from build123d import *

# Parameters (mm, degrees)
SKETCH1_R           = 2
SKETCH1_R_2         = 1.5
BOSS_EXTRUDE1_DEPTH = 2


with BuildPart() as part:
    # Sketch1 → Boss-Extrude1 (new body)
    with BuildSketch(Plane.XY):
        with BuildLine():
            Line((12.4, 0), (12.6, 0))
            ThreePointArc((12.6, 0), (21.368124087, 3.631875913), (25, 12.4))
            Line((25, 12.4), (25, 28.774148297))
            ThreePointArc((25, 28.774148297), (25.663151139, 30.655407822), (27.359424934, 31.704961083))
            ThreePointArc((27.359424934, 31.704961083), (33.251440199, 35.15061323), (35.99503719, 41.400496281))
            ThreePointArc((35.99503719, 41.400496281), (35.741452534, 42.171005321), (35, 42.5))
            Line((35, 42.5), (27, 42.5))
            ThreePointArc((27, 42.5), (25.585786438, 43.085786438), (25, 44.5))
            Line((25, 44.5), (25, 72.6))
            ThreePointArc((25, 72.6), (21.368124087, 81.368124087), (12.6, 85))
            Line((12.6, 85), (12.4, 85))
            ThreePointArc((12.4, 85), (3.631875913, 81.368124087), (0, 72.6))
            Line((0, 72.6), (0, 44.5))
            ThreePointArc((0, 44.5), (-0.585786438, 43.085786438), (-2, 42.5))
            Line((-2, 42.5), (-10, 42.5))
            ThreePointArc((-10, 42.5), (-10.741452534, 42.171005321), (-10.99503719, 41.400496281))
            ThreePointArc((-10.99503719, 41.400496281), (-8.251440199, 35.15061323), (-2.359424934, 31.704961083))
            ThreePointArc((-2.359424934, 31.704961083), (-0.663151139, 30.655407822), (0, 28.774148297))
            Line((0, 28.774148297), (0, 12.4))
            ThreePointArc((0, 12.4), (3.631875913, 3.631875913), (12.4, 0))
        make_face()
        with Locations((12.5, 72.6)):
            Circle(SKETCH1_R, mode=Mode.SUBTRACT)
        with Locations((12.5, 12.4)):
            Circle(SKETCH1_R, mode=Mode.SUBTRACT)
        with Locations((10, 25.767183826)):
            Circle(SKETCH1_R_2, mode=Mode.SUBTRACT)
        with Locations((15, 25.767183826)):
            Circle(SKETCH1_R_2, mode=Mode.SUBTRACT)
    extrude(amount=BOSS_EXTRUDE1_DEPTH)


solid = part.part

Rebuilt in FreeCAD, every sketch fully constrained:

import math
import FreeCAD as App
import Part
import Sketcher
from FreeCAD import Vector
Q = App.Units.Quantity

doc = App.newDocument("Part")
body = doc.addObject("PartDesign::Body", "Body")

# Sketch on XY plane
sketch1 = body.newObject("Sketcher::SketchObject", "Sketch")
sketch1.AttachmentSupport = (doc.getObject("XY_Plane"), [""])
sketch1.MapMode = "FlatFace"
sketch1.addGeometry(Part.LineSegment(Vector(12.4, 0, 0), Vector(12.6, 0, 0)), False)
sketch1.addGeometry(Part.ArcOfCircle(Part.Circle(Vector(12.6, 12.4, 0), Vector(0, 0, 1), 12.4), math.radians(-90), math.radians(0)), False)
sketch1.addGeometry(Part.LineSegment(Vector(25, 12.4, 0), Vector(25, 28.774148, 0)), False)
sketch1.addGeometry(Part.ArcOfCircle(Part.Circle(Vector(28, 28.774148, 0), Vector(0, 0, 1), 3), math.radians(102.329008), math.radians(180)), False)
sketch1.addGeometry(Part.ArcOfCircle(Part.Circle(Vector(25, 42.5, 0), Vector(0, 0, 1), 11.049876), math.radians(-77.670992), math.radians(-5.710593)), False)
sketch1.addGeometry(Part.ArcOfCircle(Part.Circle(Vector(35, 41.5, 0), Vector(0, 0, 1), 1), math.radians(-5.710593), math.radians(90)), False)
sketch1.addGeometry(Part.LineSegment(Vector(35, 42.5, 0), Vector(27, 42.5, 0)), False)
sketch1.addGeometry(Part.ArcOfCircle(Part.Circle(Vector(27, 44.5, 0), Vector(0, 0, 1), 2), math.radians(-180), math.radians(-90)), False)
sketch1.addGeometry(Part.LineSegment(Vector(25, 44.5, 0), Vector(25, 72.6, 0)), False)
sketch1.addGeometry(Part.ArcOfCircle(Part.Circle(Vector(12.6, 72.6, 0), Vector(0, 0, 1), 12.4), math.radians(0), math.radians(90)), False)
sketch1.addGeometry(Part.LineSegment(Vector(12.6, 85, 0), Vector(12.4, 85, 0)), False)
sketch1.addGeometry(Part.ArcOfCircle(Part.Circle(Vector(12.4, 72.6, 0), Vector(0, 0, 1), 12.4), math.radians(90), math.radians(180)), False)
sketch1.addGeometry(Part.LineSegment(Vector(0, 72.6, 0), Vector(0, 44.5, 0)), False)
sketch1.addGeometry(Part.ArcOfCircle(Part.Circle(Vector(-2, 44.5, 0), Vector(0, 0, 1), 2), math.radians(-90), math.radians(0)), False)
sketch1.addGeometry(Part.LineSegment(Vector(-2, 42.5, 0), Vector(-10, 42.5, 0)), False)
sketch1.addGeometry(Part.ArcOfCircle(Part.Circle(Vector(-10, 41.5, 0), Vector(0, 0, 1), 1), math.radians(90), math.radians(185.710593)), False)
sketch1.addGeometry(Part.ArcOfCircle(Part.Circle(Vector(0, 42.5, 0), Vector(0, 0, 1), 11.049876), math.radians(-174.289407), math.radians(-102.329008)), False)
sketch1.addGeometry(Part.ArcOfCircle(Part.Circle(Vector(-3, 28.774148, 0), Vector(0, 0, 1), 3), math.radians(0), math.radians(77.670992)), False)
sketch1.addGeometry(Part.LineSegment(Vector(0, 28.774148, 0), Vector(0, 12.4, 0)), False)
sketch1.addGeometry(Part.ArcOfCircle(Part.Circle(Vector(12.4, 12.4, 0), Vector(0, 0, 1), 12.4), math.radians(180), math.radians(270)), False)
sketch1.addGeometry(Part.Circle(Vector(10, 25.767184, 0), Vector(0, 0, 1), 1.5), False)
sketch1.addGeometry(Part.Circle(Vector(12.5, 12.4, 0), Vector(0, 0, 1), 2), False)
sketch1.addGeometry(Part.Circle(Vector(15, 25.767184, 0), Vector(0, 0, 1), 1.5), False)
sketch1.addGeometry(Part.Circle(Vector(12.5, 72.6, 0), Vector(0, 0, 1), 2), False)
sketch1.addConstraint(Sketcher.Constraint("Tangent", 0, 2, 1, 1))
sketch1.addConstraint(Sketcher.Constraint("Tangent", 1, 2, 2, 1))
sketch1.addConstraint(Sketcher.Constraint("Tangent", 2, 2, 3, 2))
sketch1.addConstraint(Sketcher.Constraint("Tangent", 3, 1, 4, 1))
sketch1.addConstraint(Sketcher.Constraint("Tangent", 4, 2, 5, 1))
sketch1.addConstraint(Sketcher.Constraint("Tangent", 5, 2, 6, 1))
sketch1.addConstraint(Sketcher.Constraint("Tangent", 6, 2, 7, 2))
sketch1.addConstraint(Sketcher.Constraint("Tangent", 7, 1, 8, 1))
sketch1.addConstraint(Sketcher.Constraint("Tangent", 8, 2, 9, 1))
sketch1.addConstraint(Sketcher.Constraint("Tangent", 9, 2, 10, 1))
sketch1.addConstraint(Sketcher.Constraint("Tangent", 10, 2, 11, 1))
sketch1.addConstraint(Sketcher.Constraint("Tangent", 11, 2, 12, 1))
sketch1.addConstraint(Sketcher.Constraint("Tangent", 12, 2, 13, 2))
sketch1.addConstraint(Sketcher.Constraint("Tangent", 13, 1, 14, 1))
sketch1.addConstraint(Sketcher.Constraint("Tangent", 14, 2, 15, 1))
sketch1.addConstraint(Sketcher.Constraint("Tangent", 15, 2, 16, 1))
sketch1.addConstraint(Sketcher.Constraint("Tangent", 16, 2, 17, 2))
sketch1.addConstraint(Sketcher.Constraint("Tangent", 17, 1, 18, 1))
sketch1.addConstraint(Sketcher.Constraint("Tangent", 18, 2, 19, 1))
sketch1.addConstraint(Sketcher.Constraint("Tangent", 19, 2, 0, 1))
sketch1.addConstraint(Sketcher.Constraint("Horizontal", 0))
sketch1.addConstraint(Sketcher.Constraint("Vertical", 2))
sketch1.addConstraint(Sketcher.Constraint("Horizontal", 6))
sketch1.addConstraint(Sketcher.Constraint("Vertical", 8))
sketch1.addConstraint(Sketcher.Constraint("Horizontal", 10))
sketch1.addConstraint(Sketcher.Constraint("Vertical", 12))
sketch1.addConstraint(Sketcher.Constraint("Horizontal", 14))
sketch1.addConstraint(Sketcher.Constraint("Vertical", 18))
sketch1.addConstraint(Sketcher.Constraint("Equal", 1, 9))
sketch1.addConstraint(Sketcher.Constraint("Equal", 9, 11))
sketch1.addConstraint(Sketcher.Constraint("Equal", 7, 13))
sketch1.addConstraint(Sketcher.Constraint("Equal", 5, 15))
sketch1.addConstraint(Sketcher.Constraint("Equal", 4, 16))
sketch1.addConstraint(Sketcher.Constraint("Equal", 3, 17))
sketch1.addConstraint(Sketcher.Constraint("Equal", 11, 19))
sketch1.addConstraint(Sketcher.Constraint("Equal", 13, 21))
sketch1.addConstraint(Sketcher.Constraint("Equal", 20, 22))
sketch1.addConstraint(Sketcher.Constraint("Equal", 21, 23))
sketch1.addConstraint(Sketcher.Constraint("PointOnObject", 16, 3, -2))
sketch1.addConstraint(Sketcher.Constraint("PointOnObject", 0, 2, -1))
sketch1.addConstraint(Sketcher.Constraint("PointOnObject", 11, 2, -2))
sketch1.addConstraint(Sketcher.Constraint("PointOnObject", 17, 1, -2))
sketch1.addConstraint(Sketcher.Constraint("Horizontal", 7, 3, 13, 3))
sketch1.addConstraint(Sketcher.Constraint("Horizontal", 4, 3, 16, 3))
sketch1.addConstraint(Sketcher.Constraint("Horizontal", 3, 3, 17, 3))
sketch1.addConstraint(Sketcher.Constraint("Horizontal", 19, 3, 21, 3))
sketch1.addConstraint(Sketcher.Constraint("Horizontal", 20, 3, 22, 3))
sketch1.addConstraint(Sketcher.Constraint("Horizontal", 11, 3, 23, 3))
sketch1.addConstraint(Sketcher.Constraint("Horizontal", 16, 3, 5, 2))
sketch1.addConstraint(Sketcher.Constraint("Vertical", 1, 3, 9, 3))
sketch1.addConstraint(Sketcher.Constraint("Vertical", 21, 3, 23, 3))
sketch1.addConstraint(Sketcher.Constraint("Diameter", 20, Q("3 mm")))
sketch1.addConstraint(Sketcher.Constraint("Diameter", 21, Q("4 mm")))
sketch1.addConstraint(Sketcher.Constraint("Radius", 3, Q("3 mm")))
sketch1.addConstraint(Sketcher.Constraint("Radius", 5, Q("1 mm")))
sketch1.addConstraint(Sketcher.Constraint("Radius", 1, Q("12.4 mm")))
sketch1.addConstraint(Sketcher.Constraint("DistanceX", 6, 2, 6, 1, Q("8 mm")))
sketch1.addConstraint(Sketcher.Constraint("DistanceX", 0, 1, 0, 2, Q("0.2 mm")))
sketch1.addConstraint(Sketcher.Constraint("DistanceY", 8, 1, 8, 2, Q("28.1 mm")))
sketch1.addConstraint(Sketcher.Constraint("DistanceX", -1, 1, 20, 3, Q("10 mm")))
sketch1.addConstraint(Sketcher.Constraint("DistanceX", -1, 1, 22, 3, Q("15 mm")))
sketch1.addConstraint(Sketcher.Constraint("DistanceY", -1, 1, 9, 2, Q("85 mm")))
sketch1.addConstraint(Sketcher.Constraint("DistanceX", -1, 1, 21, 3, Q("12.5 mm")))
sketch1.addConstraint(Sketcher.Constraint("DistanceY", -1, 1, 20, 3, Q("25.767184 mm")))
pad1 = body.newObject("PartDesign::Pad", "Pad")
pad1.Profile = sketch1
pad1.Length = 2

doc.recompute()
